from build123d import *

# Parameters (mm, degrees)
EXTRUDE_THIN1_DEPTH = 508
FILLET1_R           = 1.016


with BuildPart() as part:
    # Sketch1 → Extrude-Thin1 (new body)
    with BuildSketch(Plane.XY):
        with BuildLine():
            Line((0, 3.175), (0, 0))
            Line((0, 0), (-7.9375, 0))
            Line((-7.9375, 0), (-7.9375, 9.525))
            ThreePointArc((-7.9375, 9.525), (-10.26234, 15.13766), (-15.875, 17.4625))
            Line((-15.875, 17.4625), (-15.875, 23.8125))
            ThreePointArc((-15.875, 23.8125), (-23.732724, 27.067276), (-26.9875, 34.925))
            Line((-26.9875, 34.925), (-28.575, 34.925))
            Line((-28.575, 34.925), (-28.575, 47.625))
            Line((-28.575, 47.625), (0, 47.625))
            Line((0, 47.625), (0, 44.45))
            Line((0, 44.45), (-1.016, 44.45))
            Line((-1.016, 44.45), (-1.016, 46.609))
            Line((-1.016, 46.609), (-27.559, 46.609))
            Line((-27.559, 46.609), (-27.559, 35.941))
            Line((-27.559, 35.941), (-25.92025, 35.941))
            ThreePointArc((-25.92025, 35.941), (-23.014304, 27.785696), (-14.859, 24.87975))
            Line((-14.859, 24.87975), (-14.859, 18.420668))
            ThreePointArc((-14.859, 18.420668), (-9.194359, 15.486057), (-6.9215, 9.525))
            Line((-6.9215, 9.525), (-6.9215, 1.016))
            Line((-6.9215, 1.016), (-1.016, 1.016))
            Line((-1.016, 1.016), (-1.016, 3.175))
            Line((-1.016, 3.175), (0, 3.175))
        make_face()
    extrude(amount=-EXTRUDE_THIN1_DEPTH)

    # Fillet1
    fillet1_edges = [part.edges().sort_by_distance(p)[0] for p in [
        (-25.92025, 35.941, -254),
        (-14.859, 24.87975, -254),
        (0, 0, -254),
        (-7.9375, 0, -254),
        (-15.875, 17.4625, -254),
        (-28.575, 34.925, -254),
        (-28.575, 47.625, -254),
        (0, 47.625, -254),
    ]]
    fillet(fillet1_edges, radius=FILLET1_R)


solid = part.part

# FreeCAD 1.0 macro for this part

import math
import FreeCAD as App
import Part
import Sketcher

V = App.Vector
Q = App.Units.Quantity


def edges_at(feature, points):
    """Names of the edges that pass closest to the given points."""
    edges = feature.Shape.Edges
    near = lambda p: min(range(len(edges)), key=lambda i: edges[i].distToShape(Part.Vertex(*p))[0])
    return sorted({f"Edge{near(p) + 1}" for p in points})

doc = App.newDocument("Part")
body = doc.addObject("PartDesign::Body", "Body")

sketch1 = body.newObject("Sketcher::SketchObject", "Sketch")
sketch1.AttachmentSupport = (doc.getObject("XY_Plane"), [""])
sketch1.MapMode = "FlatFace"
sketch1.addGeometry([
    Part.LineSegment(V(0, 0, 0), V(0, 3.2, 0)),
    Part.LineSegment(V(0, 3.2, 0), V(-1, 3.2, 0)),
    Part.LineSegment(V(-1, 3.2, 0), V(-1, 1, 0)),
    Part.LineSegment(V(-1, 1, 0), V(-6.9, 1, 0)),
    Part.LineSegment(V(-6.9, 1, 0), V(-6.9, 9.5, 0)),
    Part.ArcOfCircle(Part.Circle(V(-15.9, 9.5, 0), V(0, 0, 1), 9), math.radians(0), math.radians(83)),
    Part.LineSegment(V(-14.9, 18.4, 0), V(-14.9, 24.9, 0)),
    Part.ArcOfCircle(Part.Circle(V(-15.9, 34.9, 0), V(0, 0, 1), 10.1), math.radians(174), math.radians(276)),
    Part.LineSegment(V(-25.9, 35.9, 0), V(-27.6, 35.9, 0)),
    Part.LineSegment(V(-27.6, 35.9, 0), V(-27.6, 46.6, 0)),
    Part.LineSegment(V(-27.6, 46.6, 0), V(-1, 46.6, 0)),
    Part.LineSegment(V(-1, 46.6, 0), V(-1, 44.5, 0)),
    Part.LineSegment(V(-1, 44.5, 0), V(0, 44.5, 0)),
    Part.LineSegment(V(0, 44.5, 0), V(0, 47.6, 0)),
    Part.LineSegment(V(0, 47.6, 0), V(-28.6, 47.6, 0)),
    Part.LineSegment(V(-28.6, 47.6, 0), V(-28.6, 34.9, 0)),
    Part.LineSegment(V(-28.6, 34.9, 0), V(-27, 34.9, 0)),
    Part.ArcOfCircle(Part.Circle(V(-15.9, 34.9, 0), V(0, 0, 1), 11.1), math.radians(-180), math.radians(-90)),
    Part.LineSegment(V(-15.9, 23.8, 0), V(-15.9, 17.5, 0)),
    Part.ArcOfCircle(Part.Circle(V(-15.9, 9.5, 0), V(0, 0, 1), 7.9), math.radians(0), math.radians(90)),
    Part.LineSegment(V(-7.9, 9.5, 0), V(-7.9, 0, 0)),
    Part.LineSegment(V(-7.9, 0, 0), V(0, 0, 0)),
], False)
sketch1.addConstraint([
    Sketcher.Constraint("Coincident", 0, 2, 1, 1),
    Sketcher.Constraint("Coincident", 1, 2, 2, 1),
    Sketcher.Constraint("Coincident", 2, 2, 3, 1),
    Sketcher.Constraint("Coincident", 3, 2, 4, 1),
    Sketcher.Constraint("Tangent", 4, 2, 5, 1),
    Sketcher.Constraint("Coincident", 5, 2, 6, 1),
    Sketcher.Constraint("Coincident", 6, 2, 7, 2),
    Sketcher.Constraint("Coincident", 7, 1, 8, 1),
    Sketcher.Constraint("Coincident", 8, 2, 9, 1),
    Sketcher.Constraint("Coincident", 9, 2, 10, 1),
    Sketcher.Constraint("Coincident", 10, 2, 11, 1),
    Sketcher.Constraint("Coincident", 11, 2, 12, 1),
    Sketcher.Constraint("Coincident", 12, 2, 13, 1),
    Sketcher.Constraint("Coincident", 13, 2, 14, 1),
    Sketcher.Constraint("Coincident", 14, 2, 15, 1),
    Sketcher.Constraint("Coincident", 15, 2, 16, 1),
    Sketcher.Constraint("Coincident", 16, 2, 17, 1),
    Sketcher.Constraint("Coincident", 17, 2, 18, 1),
    Sketcher.Constraint("Coincident", 18, 2, 19, 2),
    Sketcher.Constraint("Tangent", 19, 1, 20, 1),
    Sketcher.Constraint("Coincident", 20, 2, 21, 1),
    Sketcher.Constraint("Coincident", 21, 2, 0, 1),
    Sketcher.Constraint("Vertical", 0),
    Sketcher.Constraint("Horizontal", 1),
    Sketcher.Constraint("Vertical", 2),
    Sketcher.Constraint("Horizontal", 3),
    Sketcher.Constraint("Vertical", 4),
    Sketcher.Constraint("Vertical", 6),
    Sketcher.Constraint("Horizontal", 8),
    Sketcher.Constraint("Vertical", 9),
    Sketcher.Constraint("Horizontal", 10),
    Sketcher.Constraint("Vertical", 11),
    Sketcher.Constraint("Horizontal", 12),
    Sketcher.Constraint("Vertical", 13),
    Sketcher.Constraint("Horizontal", 14),
    Sketcher.Constraint("Vertical", 15),
    Sketcher.Constraint("Horizontal", 16),
    Sketcher.Constraint("Vertical", 18),
    Sketcher.Constraint("Vertical", 20),
    Sketcher.Constraint("Horizontal", 21),
    Sketcher.Constraint("Coincident", 21, 2, -1, 1),
    Sketcher.Constraint("Coincident", 17, 3, 7, 3),
    Sketcher.Constraint("Coincident", 19, 3, 5, 3),
    Sketcher.Constraint("PointOnObject", 12, 2, -2),
    Sketcher.Constraint("Horizontal", 17, 3, 15, 2),
    Sketcher.Constraint("Vertical", 5, 3, 7, 3),
    Sketcher.Constraint("Vertical", 2, 2, 10, 2),
    Sketcher.Constraint("Vertical", 19, 3, 17, 2),
    Sketcher.Constraint("Equal", 2, 11),
    Sketcher.Constraint("Equal", 0, 13),
    Sketcher.Constraint("DistanceY", 15, 2, 15, 1, Q("0.5 in")),
    Sketcher.Constraint("Radius", 17, Q("0.4375 in")),
    Sketcher.Constraint("Radius", 19, Q("0.3125 in")),
    Sketcher.Constraint("DistanceY", 5, 3, 7, 3, Q("0.9999999 in")),
    Sketcher.Constraint("DistanceX", 1, 2, 1, 1, Q("0.04 in")),
    Sketcher.Constraint("DistanceY", 9, 1, 9, 2, Q("0.42 in")),
    Sketcher.Constraint("Radius", 5, Q("0.3525 in")),
    Sketcher.Constraint("Radius", 7, Q("0.3974999 in")),
    Sketcher.Constraint("DistanceX", 8, 2, 6, 2, Q("0.5 in")),
    Sketcher.Constraint("DistanceX", 14, 2, 17, 3, Q("0.5 in")),
    Sketcher.Constraint("DistanceX", 10, 1, 10, 2, Q("1.045 in")),
    Sketcher.Constraint("DistanceX", 14, 2, 14, 1, Q("1.125 in")),
    Sketcher.Constraint("DistanceY", 0, 1, 0, 2, Q("0.125 in")),
    Sketcher.Constraint("DistanceY", 2, 2, 2, 1, Q("0.085 in")),
    Sketcher.Constraint("DistanceY", 4, 1, 4, 2, Q("0.335 in")),
])
pad1 = body.newObject("PartDesign::Pad", "Pad")
pad1.Profile = sketch1
pad1.Length = Q("20 in")
pad1.Reversed = True
doc.recompute()

fillet = body.newObject("PartDesign::Fillet", "Fillet")
fillet.Base = (pad1, edges_at(pad1, [
    (-25.92, 35.941, -254),
    (-14.859, 24.88, -254),
    (0, 0, -254),
    (-7.938, 0, -254),
    (-15.875, 17.462, -254),
    (-28.575, 34.925, -254),
    (-28.575, 47.625, -254),
    (0, 47.625, -254),
]))
fillet.Radius = Q("0.04 in")

doc.recompute()
